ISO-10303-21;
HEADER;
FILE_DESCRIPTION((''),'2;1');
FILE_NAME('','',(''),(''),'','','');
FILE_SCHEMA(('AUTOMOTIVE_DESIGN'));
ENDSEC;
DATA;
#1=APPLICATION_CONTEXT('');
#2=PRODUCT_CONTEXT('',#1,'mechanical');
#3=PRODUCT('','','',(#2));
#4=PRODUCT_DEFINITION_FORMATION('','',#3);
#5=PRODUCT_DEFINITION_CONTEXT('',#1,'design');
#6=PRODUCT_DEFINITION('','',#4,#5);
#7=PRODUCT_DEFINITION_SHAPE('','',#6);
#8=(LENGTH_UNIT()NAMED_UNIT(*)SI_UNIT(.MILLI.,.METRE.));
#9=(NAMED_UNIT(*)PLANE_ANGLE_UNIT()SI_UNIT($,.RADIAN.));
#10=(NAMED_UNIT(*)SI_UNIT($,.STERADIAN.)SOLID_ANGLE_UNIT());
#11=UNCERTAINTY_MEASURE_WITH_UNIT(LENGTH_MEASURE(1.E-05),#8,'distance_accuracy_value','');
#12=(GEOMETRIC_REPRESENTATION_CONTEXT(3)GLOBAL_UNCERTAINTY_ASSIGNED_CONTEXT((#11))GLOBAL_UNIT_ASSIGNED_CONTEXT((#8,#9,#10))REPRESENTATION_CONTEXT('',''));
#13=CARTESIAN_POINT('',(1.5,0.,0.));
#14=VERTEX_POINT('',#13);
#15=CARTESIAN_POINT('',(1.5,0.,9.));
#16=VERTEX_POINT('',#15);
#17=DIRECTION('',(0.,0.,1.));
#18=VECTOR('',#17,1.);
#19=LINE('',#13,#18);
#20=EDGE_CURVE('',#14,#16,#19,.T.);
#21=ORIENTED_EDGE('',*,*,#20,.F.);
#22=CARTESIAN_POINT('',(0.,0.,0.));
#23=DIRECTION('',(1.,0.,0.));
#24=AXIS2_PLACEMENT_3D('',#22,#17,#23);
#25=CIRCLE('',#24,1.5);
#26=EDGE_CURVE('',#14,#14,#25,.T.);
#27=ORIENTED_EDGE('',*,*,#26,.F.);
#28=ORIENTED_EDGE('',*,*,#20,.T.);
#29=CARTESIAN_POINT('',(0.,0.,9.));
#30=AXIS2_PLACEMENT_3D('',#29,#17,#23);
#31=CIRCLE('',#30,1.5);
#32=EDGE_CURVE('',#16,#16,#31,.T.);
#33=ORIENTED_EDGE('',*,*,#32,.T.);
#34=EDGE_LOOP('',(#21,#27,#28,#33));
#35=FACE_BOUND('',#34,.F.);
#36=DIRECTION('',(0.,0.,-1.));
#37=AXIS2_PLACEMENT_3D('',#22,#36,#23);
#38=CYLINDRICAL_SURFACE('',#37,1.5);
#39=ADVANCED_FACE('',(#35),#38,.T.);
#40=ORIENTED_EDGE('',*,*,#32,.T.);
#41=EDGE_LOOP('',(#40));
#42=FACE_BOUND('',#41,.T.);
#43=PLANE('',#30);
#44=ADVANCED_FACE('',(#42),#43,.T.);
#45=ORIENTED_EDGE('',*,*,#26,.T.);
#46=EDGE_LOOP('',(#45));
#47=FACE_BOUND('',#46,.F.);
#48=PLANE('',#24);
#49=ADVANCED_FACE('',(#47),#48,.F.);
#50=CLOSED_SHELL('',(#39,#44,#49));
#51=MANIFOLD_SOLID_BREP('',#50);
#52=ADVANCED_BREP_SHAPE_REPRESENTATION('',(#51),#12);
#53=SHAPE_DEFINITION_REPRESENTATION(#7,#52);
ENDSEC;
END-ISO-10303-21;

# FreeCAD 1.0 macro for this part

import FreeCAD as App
import Part
import Sketcher
Q = App.Units.Quantity

doc = App.newDocument("Part")
body = doc.addObject("PartDesign::Body", "Body")

# Sketch on XY plane
sketch1 = body.newObject("Sketcher::SketchObject", "Sketch")
sketch1.AttachmentSupport = (doc.getObject("XY_Plane"), [""])
sketch1.MapMode = "FlatFace"
sketch1.addGeometry(Part.Circle(App.Vector(0, 0, 0), App.Vector(0, 0, 1), 1.5), False)
sketch1.addConstraint([
    Sketcher.Constraint("Coincident", 0, 3, -1, 1),
    Sketcher.Constraint("Diameter", 0, Q("3 mm")),
])
pad1 = body.newObject("PartDesign::Pad", "Pad")
pad1.Profile = sketch1
pad1.Length = 9

doc.recompute()
